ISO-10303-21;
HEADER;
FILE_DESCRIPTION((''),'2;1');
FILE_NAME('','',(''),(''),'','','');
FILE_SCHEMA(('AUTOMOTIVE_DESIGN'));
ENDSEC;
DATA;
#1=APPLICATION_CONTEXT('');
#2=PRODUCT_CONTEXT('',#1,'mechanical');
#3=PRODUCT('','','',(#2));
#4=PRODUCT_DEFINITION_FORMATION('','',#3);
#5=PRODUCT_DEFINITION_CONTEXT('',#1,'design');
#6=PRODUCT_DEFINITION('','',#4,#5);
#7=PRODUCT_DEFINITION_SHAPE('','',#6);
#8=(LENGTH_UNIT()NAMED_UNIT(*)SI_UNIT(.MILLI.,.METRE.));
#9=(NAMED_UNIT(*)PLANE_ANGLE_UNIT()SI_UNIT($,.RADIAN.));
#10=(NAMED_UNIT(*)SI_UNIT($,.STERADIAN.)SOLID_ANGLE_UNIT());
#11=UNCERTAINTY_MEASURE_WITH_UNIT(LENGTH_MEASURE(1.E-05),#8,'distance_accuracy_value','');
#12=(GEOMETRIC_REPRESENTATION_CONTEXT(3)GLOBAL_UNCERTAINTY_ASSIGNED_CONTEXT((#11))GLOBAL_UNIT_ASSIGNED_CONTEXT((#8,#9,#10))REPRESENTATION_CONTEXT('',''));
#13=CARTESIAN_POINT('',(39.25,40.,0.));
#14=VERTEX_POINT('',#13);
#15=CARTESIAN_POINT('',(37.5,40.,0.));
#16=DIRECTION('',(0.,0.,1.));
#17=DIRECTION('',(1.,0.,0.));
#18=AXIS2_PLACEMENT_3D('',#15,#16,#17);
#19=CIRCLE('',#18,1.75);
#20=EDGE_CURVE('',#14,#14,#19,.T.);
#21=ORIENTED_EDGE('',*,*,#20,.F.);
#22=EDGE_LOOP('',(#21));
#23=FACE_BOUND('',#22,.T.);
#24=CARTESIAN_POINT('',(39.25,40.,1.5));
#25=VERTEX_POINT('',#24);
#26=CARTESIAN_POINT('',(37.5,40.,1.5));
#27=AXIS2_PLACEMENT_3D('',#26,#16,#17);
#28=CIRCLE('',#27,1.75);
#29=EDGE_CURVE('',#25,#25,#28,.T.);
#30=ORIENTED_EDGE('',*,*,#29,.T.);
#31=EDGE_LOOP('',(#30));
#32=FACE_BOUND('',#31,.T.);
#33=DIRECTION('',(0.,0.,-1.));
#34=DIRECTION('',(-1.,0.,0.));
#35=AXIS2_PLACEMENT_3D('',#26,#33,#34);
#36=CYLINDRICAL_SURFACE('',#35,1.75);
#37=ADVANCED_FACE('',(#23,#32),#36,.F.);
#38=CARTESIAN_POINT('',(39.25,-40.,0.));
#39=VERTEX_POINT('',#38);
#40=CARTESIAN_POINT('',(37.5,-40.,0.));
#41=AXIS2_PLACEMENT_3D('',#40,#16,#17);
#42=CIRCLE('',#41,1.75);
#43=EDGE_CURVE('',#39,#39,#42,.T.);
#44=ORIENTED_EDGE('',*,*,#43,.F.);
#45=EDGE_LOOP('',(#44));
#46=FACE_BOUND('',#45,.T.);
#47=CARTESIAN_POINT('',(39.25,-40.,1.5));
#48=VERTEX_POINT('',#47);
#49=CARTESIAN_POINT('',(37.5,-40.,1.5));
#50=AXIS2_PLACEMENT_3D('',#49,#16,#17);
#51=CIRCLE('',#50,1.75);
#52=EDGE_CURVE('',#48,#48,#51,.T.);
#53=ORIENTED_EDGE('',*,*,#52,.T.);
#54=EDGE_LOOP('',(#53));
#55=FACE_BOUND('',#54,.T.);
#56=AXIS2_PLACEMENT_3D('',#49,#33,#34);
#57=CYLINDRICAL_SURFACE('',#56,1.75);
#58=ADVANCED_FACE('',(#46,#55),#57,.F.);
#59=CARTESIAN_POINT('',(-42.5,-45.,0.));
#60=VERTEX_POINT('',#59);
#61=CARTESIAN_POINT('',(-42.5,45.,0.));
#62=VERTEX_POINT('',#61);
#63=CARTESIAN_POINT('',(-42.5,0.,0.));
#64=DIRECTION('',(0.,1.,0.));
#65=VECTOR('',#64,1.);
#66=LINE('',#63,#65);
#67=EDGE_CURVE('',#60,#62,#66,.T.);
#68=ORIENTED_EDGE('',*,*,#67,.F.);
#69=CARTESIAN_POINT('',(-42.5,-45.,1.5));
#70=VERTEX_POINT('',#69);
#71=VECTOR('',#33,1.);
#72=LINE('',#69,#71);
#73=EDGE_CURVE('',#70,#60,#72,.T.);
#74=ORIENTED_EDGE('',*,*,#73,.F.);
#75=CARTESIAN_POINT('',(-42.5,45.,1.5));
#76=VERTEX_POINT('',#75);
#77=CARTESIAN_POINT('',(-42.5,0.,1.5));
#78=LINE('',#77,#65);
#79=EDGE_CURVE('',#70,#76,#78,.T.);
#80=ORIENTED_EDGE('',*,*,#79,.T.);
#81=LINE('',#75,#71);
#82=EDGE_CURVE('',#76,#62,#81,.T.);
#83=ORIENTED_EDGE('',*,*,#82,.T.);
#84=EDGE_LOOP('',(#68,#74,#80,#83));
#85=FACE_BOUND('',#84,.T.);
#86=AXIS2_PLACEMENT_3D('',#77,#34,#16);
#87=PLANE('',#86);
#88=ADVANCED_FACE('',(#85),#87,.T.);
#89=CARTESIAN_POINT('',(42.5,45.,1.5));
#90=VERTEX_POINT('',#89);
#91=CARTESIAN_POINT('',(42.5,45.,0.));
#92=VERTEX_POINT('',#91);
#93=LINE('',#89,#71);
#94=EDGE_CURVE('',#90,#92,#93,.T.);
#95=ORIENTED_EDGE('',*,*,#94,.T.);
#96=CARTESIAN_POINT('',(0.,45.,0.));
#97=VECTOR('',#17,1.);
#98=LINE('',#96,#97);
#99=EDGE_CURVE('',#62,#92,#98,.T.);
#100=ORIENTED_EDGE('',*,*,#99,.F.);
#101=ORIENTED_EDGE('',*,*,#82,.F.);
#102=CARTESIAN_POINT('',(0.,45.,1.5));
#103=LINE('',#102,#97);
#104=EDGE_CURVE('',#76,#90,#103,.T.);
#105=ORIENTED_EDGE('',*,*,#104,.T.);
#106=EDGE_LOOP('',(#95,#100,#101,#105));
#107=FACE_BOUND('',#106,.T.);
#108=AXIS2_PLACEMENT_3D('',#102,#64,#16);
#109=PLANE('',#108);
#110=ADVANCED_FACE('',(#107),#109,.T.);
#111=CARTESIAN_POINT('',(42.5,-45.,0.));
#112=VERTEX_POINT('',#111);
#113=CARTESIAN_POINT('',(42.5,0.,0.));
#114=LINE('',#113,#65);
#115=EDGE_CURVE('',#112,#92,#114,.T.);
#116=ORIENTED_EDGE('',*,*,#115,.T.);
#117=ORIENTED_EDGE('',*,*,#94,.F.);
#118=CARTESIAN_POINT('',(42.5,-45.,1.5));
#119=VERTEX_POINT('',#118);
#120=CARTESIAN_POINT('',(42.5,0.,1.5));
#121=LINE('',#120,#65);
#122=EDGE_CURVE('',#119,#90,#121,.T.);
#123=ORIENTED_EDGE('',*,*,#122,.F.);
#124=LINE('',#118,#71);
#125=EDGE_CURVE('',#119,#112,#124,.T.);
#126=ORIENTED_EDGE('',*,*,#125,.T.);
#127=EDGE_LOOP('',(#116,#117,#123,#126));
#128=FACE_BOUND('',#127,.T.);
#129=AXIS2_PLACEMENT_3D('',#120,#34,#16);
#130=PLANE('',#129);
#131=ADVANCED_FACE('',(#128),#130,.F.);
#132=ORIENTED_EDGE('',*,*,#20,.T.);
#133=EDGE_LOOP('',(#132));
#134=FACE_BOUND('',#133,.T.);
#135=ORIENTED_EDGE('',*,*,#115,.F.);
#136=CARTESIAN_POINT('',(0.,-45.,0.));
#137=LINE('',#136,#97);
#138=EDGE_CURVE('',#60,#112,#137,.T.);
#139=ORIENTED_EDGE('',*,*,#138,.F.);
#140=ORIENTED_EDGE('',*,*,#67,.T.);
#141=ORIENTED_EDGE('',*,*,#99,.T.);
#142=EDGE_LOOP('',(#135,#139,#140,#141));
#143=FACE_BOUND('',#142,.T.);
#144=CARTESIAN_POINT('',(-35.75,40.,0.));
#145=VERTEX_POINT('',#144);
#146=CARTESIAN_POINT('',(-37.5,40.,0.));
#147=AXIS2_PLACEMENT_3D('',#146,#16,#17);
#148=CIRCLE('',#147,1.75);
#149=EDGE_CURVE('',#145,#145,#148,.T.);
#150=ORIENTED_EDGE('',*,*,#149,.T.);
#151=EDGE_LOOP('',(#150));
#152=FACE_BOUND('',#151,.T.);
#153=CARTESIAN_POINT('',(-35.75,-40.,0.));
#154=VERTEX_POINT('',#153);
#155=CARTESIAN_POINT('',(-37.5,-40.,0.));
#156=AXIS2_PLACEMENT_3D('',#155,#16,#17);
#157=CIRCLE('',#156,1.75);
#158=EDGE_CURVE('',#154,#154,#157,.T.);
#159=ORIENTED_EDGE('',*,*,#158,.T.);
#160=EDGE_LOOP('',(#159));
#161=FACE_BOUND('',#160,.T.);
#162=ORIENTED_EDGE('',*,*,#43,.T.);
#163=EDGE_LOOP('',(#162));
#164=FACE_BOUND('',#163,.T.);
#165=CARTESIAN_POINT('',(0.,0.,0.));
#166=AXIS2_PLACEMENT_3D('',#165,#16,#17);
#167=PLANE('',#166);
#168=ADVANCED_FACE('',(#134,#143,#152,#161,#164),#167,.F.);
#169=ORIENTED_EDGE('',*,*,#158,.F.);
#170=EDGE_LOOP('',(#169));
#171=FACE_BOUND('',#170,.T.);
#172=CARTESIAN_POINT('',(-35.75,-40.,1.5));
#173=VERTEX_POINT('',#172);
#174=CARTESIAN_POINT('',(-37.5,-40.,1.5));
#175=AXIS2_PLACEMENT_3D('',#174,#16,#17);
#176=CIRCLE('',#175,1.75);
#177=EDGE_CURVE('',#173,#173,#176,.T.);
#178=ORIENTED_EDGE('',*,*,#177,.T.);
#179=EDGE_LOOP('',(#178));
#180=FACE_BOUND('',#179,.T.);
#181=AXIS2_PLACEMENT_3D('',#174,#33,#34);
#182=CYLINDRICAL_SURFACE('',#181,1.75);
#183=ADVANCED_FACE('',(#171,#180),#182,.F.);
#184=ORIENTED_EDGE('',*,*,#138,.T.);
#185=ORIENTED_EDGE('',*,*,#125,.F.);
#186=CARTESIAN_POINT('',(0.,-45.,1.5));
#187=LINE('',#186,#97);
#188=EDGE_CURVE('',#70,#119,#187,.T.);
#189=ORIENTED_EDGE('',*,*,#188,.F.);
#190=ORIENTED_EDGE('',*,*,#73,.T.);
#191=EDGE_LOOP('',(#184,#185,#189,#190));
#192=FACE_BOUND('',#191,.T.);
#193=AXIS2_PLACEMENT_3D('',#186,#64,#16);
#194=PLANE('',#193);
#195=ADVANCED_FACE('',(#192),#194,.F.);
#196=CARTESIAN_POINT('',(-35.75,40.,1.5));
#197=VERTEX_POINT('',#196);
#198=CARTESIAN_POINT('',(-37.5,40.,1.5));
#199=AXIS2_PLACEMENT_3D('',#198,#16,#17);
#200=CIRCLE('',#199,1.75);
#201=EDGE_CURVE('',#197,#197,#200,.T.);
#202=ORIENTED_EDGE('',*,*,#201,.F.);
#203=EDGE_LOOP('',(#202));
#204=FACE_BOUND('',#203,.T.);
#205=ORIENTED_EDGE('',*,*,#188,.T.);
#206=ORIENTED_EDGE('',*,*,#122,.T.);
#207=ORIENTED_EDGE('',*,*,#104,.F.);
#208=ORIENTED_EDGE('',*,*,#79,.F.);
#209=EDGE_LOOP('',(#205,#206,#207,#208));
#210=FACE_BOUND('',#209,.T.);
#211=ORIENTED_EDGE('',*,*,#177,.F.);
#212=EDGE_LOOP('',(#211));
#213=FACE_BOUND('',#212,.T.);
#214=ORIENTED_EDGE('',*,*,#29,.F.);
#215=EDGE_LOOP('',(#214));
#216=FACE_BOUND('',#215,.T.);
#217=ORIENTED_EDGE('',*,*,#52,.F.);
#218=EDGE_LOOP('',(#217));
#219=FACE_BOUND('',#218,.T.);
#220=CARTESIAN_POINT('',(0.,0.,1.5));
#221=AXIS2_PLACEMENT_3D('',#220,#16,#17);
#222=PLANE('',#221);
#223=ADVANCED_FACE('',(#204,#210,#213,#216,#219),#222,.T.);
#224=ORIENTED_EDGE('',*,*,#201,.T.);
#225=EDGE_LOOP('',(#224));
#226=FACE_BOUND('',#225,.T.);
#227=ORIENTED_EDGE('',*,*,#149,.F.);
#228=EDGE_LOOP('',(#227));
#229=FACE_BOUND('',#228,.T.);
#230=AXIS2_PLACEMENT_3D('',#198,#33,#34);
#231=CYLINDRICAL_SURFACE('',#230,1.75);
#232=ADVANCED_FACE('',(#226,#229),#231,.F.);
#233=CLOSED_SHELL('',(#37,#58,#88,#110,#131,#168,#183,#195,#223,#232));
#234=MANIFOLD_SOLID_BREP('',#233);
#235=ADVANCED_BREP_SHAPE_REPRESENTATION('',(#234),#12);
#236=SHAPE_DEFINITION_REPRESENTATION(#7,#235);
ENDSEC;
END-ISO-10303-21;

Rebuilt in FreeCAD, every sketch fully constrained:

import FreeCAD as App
import Part
import Sketcher
from FreeCAD import Vector


def add_polygon(sketch, points):
    """Adds a closed chain of lines whose ends are joined by coincident constraints."""
    first, n = sketch.GeometryCount, len(points)
    for a, b in zip(points, points[1:] + points[:1]):
        sketch.addGeometry(Part.LineSegment(App.Vector(*a, 0), App.Vector(*b, 0)), False)
    for i in range(n):
        sketch.addConstraint(Sketcher.Constraint("Coincident", first + i, 2, first + (i + 1) % n, 1))

doc = App.newDocument("Part")
params = doc.addObject("Spreadsheet::Sheet", "Params")
for row, (alias, value) in enumerate([
    ("sketch1_diameter", "3.5 mm"),
    ("sketch1_width", "85 mm"),
    ("sketch1_height", "90 mm"),
    ("pad1_length", "1.5 mm"),
], start=1):
    params.set(f"A{row}", alias)
    params.set(f"B{row}", "=" + value)
    params.setAlias(f"B{row}", alias)

body = doc.addObject("PartDesign::Body", "Body")

# Sketch on XY plane
sketch1 = doc.addObject("Sketcher::SketchObject", "Sketch")
body.addObject(sketch1)
sketch1.AttachmentSupport = (doc.XY_Plane, [""])
sketch1.MapMode = "FlatFace"
add_polygon(sketch1, [(-42.5, 45), (-42.5, -45), (42.5, -45), (42.5, 45)])  # lines 0-3
sketch1.addGeometry(Part.Circle(Vector(-37.5, -40, 0), Vector(0, 0, 1), 1.8), False)  # 4
sketch1.addGeometry(Part.Circle(Vector(37.5, -40, 0), Vector(0, 0, 1), 1.8), False)  # 5
sketch1.addGeometry(Part.Circle(Vector(-37.5, 40, 0), Vector(0, 0, 1), 1.8), False)  # 6
sketch1.addGeometry(Part.Circle(Vector(37.5, 40, 0), Vector(0, 0, 1), 1.8), False)  # 7
sketch1.addConstraint([
    Sketcher.Constraint("Vertical", 0),
    Sketcher.Constraint("Horizontal", 1),
    Sketcher.Constraint("Vertical", 2),
    Sketcher.Constraint("Horizontal", 3),
    Sketcher.Constraint("Equal", 4, 5),
    Sketcher.Constraint("Equal", 5, 6),
    Sketcher.Constraint("Equal", 6, 7),
    Sketcher.Constraint("Symmetric", 5, 3, 6, 3, -1, 1),
    Sketcher.Constraint("Symmetric", 4, 3, 7, 3, -1, 1),
    Sketcher.Constraint("Symmetric", 0, 2, 2, 2, -1, 1),
    Sketcher.Constraint("Symmetric", 4, 3, 5, 3, -2),
    Sketcher.Constraint("Diameter", 4, 3.5),
    Sketcher.Constraint("DistanceX", 1, 1, 1, 2, 85.0),
    Sketcher.Constraint("DistanceY", 0, 2, 0, 1, 90.0),
    Sketcher.Constraint("DistanceY", 4, 3, -1, 1, 40.0),
    Sketcher.Constraint("DistanceX", 4, 3, 5, 3, 75.0),
])
sketch1.setExpression("Constraints[15]", "Params.sketch1_diameter")
sketch1.setExpression("Constraints[16]", "Params.sketch1_width")
sketch1.setExpression("Constraints[17]", "Params.sketch1_height")
pad1 = doc.addObject("PartDesign::Pad", "Pad")
body.addObject(pad1)
pad1.Profile = sketch1
pad1.setExpression("Length", "Params.pad1_length")

doc.recompute()
